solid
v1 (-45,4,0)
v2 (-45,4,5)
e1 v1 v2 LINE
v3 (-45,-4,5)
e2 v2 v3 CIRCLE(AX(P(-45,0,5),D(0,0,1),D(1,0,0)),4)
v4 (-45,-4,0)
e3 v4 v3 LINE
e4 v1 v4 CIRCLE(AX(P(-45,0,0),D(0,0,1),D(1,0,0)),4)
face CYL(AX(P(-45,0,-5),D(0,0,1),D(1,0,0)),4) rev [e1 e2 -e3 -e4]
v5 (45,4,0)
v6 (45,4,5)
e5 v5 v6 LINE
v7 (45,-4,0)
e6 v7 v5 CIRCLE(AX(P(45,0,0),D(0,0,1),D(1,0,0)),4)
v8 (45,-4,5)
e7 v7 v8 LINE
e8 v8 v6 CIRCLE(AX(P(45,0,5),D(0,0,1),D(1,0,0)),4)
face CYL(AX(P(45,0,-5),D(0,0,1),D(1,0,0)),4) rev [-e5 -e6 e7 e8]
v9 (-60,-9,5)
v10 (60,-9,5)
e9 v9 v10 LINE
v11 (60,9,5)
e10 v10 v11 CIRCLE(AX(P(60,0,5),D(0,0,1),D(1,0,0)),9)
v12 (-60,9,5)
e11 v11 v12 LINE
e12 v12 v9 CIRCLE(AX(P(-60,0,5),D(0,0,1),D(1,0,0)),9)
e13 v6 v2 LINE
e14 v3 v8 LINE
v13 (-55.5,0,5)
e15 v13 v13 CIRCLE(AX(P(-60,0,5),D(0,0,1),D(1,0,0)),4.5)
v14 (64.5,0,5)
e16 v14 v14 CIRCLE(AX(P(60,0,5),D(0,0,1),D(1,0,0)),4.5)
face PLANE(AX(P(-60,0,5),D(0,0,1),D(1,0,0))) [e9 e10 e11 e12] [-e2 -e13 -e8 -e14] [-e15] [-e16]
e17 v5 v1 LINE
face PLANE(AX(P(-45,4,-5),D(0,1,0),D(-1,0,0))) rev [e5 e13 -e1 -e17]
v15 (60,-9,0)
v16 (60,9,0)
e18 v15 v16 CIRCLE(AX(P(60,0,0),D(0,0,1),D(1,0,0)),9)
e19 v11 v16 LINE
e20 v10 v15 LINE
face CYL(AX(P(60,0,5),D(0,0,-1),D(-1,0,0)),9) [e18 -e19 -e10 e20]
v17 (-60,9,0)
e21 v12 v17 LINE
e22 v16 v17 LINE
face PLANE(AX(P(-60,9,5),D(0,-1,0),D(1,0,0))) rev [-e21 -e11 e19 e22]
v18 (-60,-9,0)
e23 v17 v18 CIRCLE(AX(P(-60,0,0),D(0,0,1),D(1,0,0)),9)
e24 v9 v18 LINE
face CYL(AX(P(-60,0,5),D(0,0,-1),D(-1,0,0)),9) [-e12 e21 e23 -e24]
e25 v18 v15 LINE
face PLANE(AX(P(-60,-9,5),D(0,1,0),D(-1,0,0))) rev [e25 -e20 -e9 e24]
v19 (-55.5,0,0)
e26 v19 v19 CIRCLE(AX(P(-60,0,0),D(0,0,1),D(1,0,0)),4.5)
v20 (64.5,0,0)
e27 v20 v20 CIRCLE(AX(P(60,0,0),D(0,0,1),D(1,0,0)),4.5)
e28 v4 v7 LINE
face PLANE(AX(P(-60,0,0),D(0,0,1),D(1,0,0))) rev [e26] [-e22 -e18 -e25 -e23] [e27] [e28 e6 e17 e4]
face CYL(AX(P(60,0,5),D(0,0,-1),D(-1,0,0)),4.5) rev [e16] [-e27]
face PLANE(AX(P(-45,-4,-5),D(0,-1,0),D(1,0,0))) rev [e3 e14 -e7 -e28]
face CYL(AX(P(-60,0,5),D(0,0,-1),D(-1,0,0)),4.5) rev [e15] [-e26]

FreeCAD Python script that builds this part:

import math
import FreeCAD as App
import Part
import Sketcher
from FreeCAD import Vector

doc = App.newDocument("Part")
body = doc.addObject("PartDesign::Body", "Body")

# Sketch on XY plane
sketch1 = body.newObject("Sketcher::SketchObject", "Sketch")
sketch1.AttachmentSupport = (doc.getObject("XY_Plane"), [""])
sketch1.MapMode = "FlatFace"
sketch1.addGeometry([
    Part.LineSegment(Vector(60, 9, 0), Vector(-60, 9, 0)),  # 0
    Part.ArcOfCircle(Part.Circle(Vector(-60, 0, 0), Vector(0, 0, 1), 9), math.radians(90), math.radians(270)),  # 1
    Part.LineSegment(Vector(-60, -9, 0), Vector(60, -9, 0)),  # 2
    Part.ArcOfCircle(Part.Circle(Vector(60, 0, 0), Vector(0, 0, 1), 9), math.radians(-90), math.radians(90)),  # 3
    Part.Circle(Vector(60, 0, 0), Vector(0, 0, 1), 4.5),  # 4
    Part.Circle(Vector(-60, 0, 0), Vector(0, 0, 1), 4.5),  # 5
], False)
sketch1.addConstraint([
    Sketcher.Constraint("Tangent", 0, 2, 1, 1),
    Sketcher.Constraint("Tangent", 1, 2, 2, 1),
    Sketcher.Constraint("Tangent", 2, 2, 3, 1),
    Sketcher.Constraint("Tangent", 3, 2, 0, 1),
    Sketcher.Constraint("Horizontal", 0),
    Sketcher.Constraint("Horizontal", 2),
    Sketcher.Constraint("Coincident", 4, 3, 3, 3),
    Sketcher.Constraint("Coincident", 5, 3, 1, 3),
    Sketcher.Constraint("Equal", 4, 5),
    Sketcher.Constraint("Symmetric", 1, 3, 3, 3, -1, 1),
    Sketcher.Constraint("Diameter", 4, 9.0),
    Sketcher.Constraint("Radius", 1, 9.0),
    Sketcher.Constraint("DistanceX", 0, 2, 0, 1, 120.0),
])
pad1 = body.newObject("PartDesign::Pad", "Pad")
pad1.Profile = sketch1
pad1.Length = 5

# Sketch on XY plane
sketch2 = body.newObject("Sketcher::SketchObject", "Sketch001")
sketch2.AttachmentSupport = (doc.getObject("XY_Plane"), [""])
sketch2.MapMode = "FlatFace"
sketch2.AttachmentOffset = App.Placement(Vector(0, 0, 5), App.Rotation())
sketch2.addGeometry([
    Part.LineSegment(Vector(45, 4, 0), Vector(-45, 4, 0)),
    Part.ArcOfCircle(Part.Circle(Vector(-45, 0, 0), Vector(0, 0, 1), 4), math.radians(90), math.radians(270)),
    Part.LineSegment(Vector(-45, -4, 0), Vector(45, -4, 0)),
    Part.ArcOfCircle(Part.Circle(Vector(45, 0, 0), Vector(0, 0, 1), 4), math.radians(-90), math.radians(90)),
], False)
sketch2.addConstraint([
    Sketcher.Constraint("Tangent", 0, 2, 1, 1),
    Sketcher.Constraint("Tangent", 1, 2, 2, 1),
    Sketcher.Constraint("Tangent", 2, 2, 3, 1),
    Sketcher.Constraint("Tangent", 3, 2, 0, 1),
    Sketcher.Constraint("Horizontal", 0),
    Sketcher.Constraint("Horizontal", 2),
    Sketcher.Constraint("Symmetric", 1, 3, 3, 3, -1, 1),
    Sketcher.Constraint("Radius", 1, 4.0),
    Sketcher.Constraint("DistanceX", 0, 2, 0, 1, 90.0),
])
pocket1 = body.newObject("PartDesign::Pocket", "Pocket")
pocket1.Profile = sketch2
pocket1.Length = 10

doc.recompute()
